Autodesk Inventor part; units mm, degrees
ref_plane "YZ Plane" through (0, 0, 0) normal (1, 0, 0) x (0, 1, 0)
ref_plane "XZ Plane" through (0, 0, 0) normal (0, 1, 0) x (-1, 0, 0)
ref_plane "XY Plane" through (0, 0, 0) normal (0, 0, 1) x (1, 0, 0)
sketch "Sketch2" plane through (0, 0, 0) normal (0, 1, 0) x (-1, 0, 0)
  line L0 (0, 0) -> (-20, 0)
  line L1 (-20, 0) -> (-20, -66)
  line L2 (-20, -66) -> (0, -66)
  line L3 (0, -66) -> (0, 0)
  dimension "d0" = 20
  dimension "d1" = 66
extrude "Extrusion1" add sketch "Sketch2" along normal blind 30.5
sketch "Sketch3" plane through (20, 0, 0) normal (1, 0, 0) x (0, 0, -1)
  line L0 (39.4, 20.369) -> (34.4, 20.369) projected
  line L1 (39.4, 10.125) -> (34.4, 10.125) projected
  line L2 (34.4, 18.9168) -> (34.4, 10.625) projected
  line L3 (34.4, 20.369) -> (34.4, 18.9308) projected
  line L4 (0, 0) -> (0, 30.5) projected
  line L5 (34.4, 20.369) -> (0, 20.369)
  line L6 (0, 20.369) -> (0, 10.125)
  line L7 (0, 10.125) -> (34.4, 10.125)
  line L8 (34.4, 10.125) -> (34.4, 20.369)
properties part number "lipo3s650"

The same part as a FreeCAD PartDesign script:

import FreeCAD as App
import Part
import Sketcher
Q = App.Units.Quantity


def add_polygon(sketch, points):
    """Adds a closed chain of lines whose ends are joined by coincident constraints."""
    first, n = sketch.GeometryCount, len(points)
    for a, b in zip(points, points[1:] + points[:1]):
        sketch.addGeometry(Part.LineSegment(App.Vector(*a, 0), App.Vector(*b, 0)), False)
    for i in range(n):
        sketch.addConstraint(Sketcher.Constraint("Coincident", first + i, 2, first + (i + 1) % n, 1))

doc = App.newDocument("Part")
params = doc.addObject("Spreadsheet::Sheet", "Params")
for row, (alias, value) in enumerate([
    ("sketch1_width", "20 mm"),
    ("sketch1_height", "66 mm"),
    ("pad1_length", "30.5 mm"),
], start=1):
    params.set(f"A{row}", alias)
    params.set(f"B{row}", "=" + value)
    params.setAlias(f"B{row}", alias)

body = doc.addObject("PartDesign::Body", "Body")

# Sketch on XZ plane
sketch1 = body.newObject("Sketcher::SketchObject", "Sketch")
sketch1.AttachmentSupport = (doc.getObject("XZ_Plane"), [""])
sketch1.MapMode = "FlatFace"
add_polygon(sketch1, [(0, -66), (0, 0), (20, 0), (20, -66)])  # lines 0-3
sketch1.addConstraint(Sketcher.Constraint("Vertical", 0))
sketch1.addConstraint(Sketcher.Constraint("Horizontal", 1))
sketch1.addConstraint(Sketcher.Constraint("Vertical", 2))
sketch1.addConstraint(Sketcher.Constraint("Horizontal", 3))
sketch1.addConstraint(Sketcher.Constraint("Coincident", 0, 2, -1, 1))
sketch1.addConstraint(Sketcher.Constraint("DistanceX", 1, 1, 1, 2, Q("20 mm")))
sketch1.addConstraint(Sketcher.Constraint("DistanceY", 0, 1, 0, 2, Q("66 mm")))
sketch1.setExpression("Constraints[9]", "Params.sketch1_width")
sketch1.setExpression("Constraints[10]", "Params.sketch1_height")
pad1 = body.newObject("PartDesign::Pad", "Pad")
pad1.Profile = sketch1
pad1.setExpression("Length", "Params.pad1_length")
pad1.Reversed = True

doc.recompute()
